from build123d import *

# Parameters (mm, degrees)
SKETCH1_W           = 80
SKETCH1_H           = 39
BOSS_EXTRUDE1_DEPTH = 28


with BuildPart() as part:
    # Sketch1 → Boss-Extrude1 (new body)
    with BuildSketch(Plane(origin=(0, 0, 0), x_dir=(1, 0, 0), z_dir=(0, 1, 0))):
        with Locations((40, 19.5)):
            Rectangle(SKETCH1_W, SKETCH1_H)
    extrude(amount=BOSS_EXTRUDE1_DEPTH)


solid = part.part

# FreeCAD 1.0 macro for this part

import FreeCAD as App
import Part
import Sketcher
from FreeCAD import Vector

doc = App.newDocument("Part")
body = doc.addObject("PartDesign::Body", "Body")

# Sketch on XZ plane
sketch1 = body.newObject("Sketcher::SketchObject", "Sketch")
sketch1.AttachmentSupport = (doc.getObject("XZ_Plane"), [""])
sketch1.MapMode = "FlatFace"
sketch1.addGeometry(Part.LineSegment(Vector(0, -39, 0), Vector(0, 0, 0)), False)
sketch1.addGeometry(Part.LineSegment(Vector(0, 0, 0), Vector(80, 0, 0)), False)
sketch1.addGeometry(Part.LineSegment(Vector(80, 0, 0), Vector(80, -39, 0)), False)
sketch1.addGeometry(Part.LineSegment(Vector(80, -39, 0), Vector(0, -39, 0)), False)
sketch1.addConstraint(Sketcher.Constraint("Coincident", 0, 2, 1, 1))
sketch1.addConstraint(Sketcher.Constraint("Coincident", 1, 2, 2, 1))
sketch1.addConstraint(Sketcher.Constraint("Coincident", 2, 2, 3, 1))
sketch1.addConstraint(Sketcher.Constraint("Coincident", 3, 2, 0, 1))
sketch1.addConstraint(Sketcher.Constraint("Vertical", 0))
sketch1.addConstraint(Sketcher.Constraint("Horizontal", 1))
sketch1.addConstraint(Sketcher.Constraint("Vertical", 2))
sketch1.addConstraint(Sketcher.Constraint("Horizontal", 3))
sketch1.addConstraint(Sketcher.Constraint("Coincident", 0, 2, -1, 1))
sketch1.addConstraint(Sketcher.Constraint("DistanceX", 1, 1, 1, 2, 80.0))
sketch1.addConstraint(Sketcher.Constraint("DistanceY", 0, 1, 0, 2, 39.0))
pad1 = body.newObject("PartDesign::Pad", "Pad")
pad1.Profile = sketch1
pad1.Length = 28
pad1.Reversed = True

doc.recompute()
